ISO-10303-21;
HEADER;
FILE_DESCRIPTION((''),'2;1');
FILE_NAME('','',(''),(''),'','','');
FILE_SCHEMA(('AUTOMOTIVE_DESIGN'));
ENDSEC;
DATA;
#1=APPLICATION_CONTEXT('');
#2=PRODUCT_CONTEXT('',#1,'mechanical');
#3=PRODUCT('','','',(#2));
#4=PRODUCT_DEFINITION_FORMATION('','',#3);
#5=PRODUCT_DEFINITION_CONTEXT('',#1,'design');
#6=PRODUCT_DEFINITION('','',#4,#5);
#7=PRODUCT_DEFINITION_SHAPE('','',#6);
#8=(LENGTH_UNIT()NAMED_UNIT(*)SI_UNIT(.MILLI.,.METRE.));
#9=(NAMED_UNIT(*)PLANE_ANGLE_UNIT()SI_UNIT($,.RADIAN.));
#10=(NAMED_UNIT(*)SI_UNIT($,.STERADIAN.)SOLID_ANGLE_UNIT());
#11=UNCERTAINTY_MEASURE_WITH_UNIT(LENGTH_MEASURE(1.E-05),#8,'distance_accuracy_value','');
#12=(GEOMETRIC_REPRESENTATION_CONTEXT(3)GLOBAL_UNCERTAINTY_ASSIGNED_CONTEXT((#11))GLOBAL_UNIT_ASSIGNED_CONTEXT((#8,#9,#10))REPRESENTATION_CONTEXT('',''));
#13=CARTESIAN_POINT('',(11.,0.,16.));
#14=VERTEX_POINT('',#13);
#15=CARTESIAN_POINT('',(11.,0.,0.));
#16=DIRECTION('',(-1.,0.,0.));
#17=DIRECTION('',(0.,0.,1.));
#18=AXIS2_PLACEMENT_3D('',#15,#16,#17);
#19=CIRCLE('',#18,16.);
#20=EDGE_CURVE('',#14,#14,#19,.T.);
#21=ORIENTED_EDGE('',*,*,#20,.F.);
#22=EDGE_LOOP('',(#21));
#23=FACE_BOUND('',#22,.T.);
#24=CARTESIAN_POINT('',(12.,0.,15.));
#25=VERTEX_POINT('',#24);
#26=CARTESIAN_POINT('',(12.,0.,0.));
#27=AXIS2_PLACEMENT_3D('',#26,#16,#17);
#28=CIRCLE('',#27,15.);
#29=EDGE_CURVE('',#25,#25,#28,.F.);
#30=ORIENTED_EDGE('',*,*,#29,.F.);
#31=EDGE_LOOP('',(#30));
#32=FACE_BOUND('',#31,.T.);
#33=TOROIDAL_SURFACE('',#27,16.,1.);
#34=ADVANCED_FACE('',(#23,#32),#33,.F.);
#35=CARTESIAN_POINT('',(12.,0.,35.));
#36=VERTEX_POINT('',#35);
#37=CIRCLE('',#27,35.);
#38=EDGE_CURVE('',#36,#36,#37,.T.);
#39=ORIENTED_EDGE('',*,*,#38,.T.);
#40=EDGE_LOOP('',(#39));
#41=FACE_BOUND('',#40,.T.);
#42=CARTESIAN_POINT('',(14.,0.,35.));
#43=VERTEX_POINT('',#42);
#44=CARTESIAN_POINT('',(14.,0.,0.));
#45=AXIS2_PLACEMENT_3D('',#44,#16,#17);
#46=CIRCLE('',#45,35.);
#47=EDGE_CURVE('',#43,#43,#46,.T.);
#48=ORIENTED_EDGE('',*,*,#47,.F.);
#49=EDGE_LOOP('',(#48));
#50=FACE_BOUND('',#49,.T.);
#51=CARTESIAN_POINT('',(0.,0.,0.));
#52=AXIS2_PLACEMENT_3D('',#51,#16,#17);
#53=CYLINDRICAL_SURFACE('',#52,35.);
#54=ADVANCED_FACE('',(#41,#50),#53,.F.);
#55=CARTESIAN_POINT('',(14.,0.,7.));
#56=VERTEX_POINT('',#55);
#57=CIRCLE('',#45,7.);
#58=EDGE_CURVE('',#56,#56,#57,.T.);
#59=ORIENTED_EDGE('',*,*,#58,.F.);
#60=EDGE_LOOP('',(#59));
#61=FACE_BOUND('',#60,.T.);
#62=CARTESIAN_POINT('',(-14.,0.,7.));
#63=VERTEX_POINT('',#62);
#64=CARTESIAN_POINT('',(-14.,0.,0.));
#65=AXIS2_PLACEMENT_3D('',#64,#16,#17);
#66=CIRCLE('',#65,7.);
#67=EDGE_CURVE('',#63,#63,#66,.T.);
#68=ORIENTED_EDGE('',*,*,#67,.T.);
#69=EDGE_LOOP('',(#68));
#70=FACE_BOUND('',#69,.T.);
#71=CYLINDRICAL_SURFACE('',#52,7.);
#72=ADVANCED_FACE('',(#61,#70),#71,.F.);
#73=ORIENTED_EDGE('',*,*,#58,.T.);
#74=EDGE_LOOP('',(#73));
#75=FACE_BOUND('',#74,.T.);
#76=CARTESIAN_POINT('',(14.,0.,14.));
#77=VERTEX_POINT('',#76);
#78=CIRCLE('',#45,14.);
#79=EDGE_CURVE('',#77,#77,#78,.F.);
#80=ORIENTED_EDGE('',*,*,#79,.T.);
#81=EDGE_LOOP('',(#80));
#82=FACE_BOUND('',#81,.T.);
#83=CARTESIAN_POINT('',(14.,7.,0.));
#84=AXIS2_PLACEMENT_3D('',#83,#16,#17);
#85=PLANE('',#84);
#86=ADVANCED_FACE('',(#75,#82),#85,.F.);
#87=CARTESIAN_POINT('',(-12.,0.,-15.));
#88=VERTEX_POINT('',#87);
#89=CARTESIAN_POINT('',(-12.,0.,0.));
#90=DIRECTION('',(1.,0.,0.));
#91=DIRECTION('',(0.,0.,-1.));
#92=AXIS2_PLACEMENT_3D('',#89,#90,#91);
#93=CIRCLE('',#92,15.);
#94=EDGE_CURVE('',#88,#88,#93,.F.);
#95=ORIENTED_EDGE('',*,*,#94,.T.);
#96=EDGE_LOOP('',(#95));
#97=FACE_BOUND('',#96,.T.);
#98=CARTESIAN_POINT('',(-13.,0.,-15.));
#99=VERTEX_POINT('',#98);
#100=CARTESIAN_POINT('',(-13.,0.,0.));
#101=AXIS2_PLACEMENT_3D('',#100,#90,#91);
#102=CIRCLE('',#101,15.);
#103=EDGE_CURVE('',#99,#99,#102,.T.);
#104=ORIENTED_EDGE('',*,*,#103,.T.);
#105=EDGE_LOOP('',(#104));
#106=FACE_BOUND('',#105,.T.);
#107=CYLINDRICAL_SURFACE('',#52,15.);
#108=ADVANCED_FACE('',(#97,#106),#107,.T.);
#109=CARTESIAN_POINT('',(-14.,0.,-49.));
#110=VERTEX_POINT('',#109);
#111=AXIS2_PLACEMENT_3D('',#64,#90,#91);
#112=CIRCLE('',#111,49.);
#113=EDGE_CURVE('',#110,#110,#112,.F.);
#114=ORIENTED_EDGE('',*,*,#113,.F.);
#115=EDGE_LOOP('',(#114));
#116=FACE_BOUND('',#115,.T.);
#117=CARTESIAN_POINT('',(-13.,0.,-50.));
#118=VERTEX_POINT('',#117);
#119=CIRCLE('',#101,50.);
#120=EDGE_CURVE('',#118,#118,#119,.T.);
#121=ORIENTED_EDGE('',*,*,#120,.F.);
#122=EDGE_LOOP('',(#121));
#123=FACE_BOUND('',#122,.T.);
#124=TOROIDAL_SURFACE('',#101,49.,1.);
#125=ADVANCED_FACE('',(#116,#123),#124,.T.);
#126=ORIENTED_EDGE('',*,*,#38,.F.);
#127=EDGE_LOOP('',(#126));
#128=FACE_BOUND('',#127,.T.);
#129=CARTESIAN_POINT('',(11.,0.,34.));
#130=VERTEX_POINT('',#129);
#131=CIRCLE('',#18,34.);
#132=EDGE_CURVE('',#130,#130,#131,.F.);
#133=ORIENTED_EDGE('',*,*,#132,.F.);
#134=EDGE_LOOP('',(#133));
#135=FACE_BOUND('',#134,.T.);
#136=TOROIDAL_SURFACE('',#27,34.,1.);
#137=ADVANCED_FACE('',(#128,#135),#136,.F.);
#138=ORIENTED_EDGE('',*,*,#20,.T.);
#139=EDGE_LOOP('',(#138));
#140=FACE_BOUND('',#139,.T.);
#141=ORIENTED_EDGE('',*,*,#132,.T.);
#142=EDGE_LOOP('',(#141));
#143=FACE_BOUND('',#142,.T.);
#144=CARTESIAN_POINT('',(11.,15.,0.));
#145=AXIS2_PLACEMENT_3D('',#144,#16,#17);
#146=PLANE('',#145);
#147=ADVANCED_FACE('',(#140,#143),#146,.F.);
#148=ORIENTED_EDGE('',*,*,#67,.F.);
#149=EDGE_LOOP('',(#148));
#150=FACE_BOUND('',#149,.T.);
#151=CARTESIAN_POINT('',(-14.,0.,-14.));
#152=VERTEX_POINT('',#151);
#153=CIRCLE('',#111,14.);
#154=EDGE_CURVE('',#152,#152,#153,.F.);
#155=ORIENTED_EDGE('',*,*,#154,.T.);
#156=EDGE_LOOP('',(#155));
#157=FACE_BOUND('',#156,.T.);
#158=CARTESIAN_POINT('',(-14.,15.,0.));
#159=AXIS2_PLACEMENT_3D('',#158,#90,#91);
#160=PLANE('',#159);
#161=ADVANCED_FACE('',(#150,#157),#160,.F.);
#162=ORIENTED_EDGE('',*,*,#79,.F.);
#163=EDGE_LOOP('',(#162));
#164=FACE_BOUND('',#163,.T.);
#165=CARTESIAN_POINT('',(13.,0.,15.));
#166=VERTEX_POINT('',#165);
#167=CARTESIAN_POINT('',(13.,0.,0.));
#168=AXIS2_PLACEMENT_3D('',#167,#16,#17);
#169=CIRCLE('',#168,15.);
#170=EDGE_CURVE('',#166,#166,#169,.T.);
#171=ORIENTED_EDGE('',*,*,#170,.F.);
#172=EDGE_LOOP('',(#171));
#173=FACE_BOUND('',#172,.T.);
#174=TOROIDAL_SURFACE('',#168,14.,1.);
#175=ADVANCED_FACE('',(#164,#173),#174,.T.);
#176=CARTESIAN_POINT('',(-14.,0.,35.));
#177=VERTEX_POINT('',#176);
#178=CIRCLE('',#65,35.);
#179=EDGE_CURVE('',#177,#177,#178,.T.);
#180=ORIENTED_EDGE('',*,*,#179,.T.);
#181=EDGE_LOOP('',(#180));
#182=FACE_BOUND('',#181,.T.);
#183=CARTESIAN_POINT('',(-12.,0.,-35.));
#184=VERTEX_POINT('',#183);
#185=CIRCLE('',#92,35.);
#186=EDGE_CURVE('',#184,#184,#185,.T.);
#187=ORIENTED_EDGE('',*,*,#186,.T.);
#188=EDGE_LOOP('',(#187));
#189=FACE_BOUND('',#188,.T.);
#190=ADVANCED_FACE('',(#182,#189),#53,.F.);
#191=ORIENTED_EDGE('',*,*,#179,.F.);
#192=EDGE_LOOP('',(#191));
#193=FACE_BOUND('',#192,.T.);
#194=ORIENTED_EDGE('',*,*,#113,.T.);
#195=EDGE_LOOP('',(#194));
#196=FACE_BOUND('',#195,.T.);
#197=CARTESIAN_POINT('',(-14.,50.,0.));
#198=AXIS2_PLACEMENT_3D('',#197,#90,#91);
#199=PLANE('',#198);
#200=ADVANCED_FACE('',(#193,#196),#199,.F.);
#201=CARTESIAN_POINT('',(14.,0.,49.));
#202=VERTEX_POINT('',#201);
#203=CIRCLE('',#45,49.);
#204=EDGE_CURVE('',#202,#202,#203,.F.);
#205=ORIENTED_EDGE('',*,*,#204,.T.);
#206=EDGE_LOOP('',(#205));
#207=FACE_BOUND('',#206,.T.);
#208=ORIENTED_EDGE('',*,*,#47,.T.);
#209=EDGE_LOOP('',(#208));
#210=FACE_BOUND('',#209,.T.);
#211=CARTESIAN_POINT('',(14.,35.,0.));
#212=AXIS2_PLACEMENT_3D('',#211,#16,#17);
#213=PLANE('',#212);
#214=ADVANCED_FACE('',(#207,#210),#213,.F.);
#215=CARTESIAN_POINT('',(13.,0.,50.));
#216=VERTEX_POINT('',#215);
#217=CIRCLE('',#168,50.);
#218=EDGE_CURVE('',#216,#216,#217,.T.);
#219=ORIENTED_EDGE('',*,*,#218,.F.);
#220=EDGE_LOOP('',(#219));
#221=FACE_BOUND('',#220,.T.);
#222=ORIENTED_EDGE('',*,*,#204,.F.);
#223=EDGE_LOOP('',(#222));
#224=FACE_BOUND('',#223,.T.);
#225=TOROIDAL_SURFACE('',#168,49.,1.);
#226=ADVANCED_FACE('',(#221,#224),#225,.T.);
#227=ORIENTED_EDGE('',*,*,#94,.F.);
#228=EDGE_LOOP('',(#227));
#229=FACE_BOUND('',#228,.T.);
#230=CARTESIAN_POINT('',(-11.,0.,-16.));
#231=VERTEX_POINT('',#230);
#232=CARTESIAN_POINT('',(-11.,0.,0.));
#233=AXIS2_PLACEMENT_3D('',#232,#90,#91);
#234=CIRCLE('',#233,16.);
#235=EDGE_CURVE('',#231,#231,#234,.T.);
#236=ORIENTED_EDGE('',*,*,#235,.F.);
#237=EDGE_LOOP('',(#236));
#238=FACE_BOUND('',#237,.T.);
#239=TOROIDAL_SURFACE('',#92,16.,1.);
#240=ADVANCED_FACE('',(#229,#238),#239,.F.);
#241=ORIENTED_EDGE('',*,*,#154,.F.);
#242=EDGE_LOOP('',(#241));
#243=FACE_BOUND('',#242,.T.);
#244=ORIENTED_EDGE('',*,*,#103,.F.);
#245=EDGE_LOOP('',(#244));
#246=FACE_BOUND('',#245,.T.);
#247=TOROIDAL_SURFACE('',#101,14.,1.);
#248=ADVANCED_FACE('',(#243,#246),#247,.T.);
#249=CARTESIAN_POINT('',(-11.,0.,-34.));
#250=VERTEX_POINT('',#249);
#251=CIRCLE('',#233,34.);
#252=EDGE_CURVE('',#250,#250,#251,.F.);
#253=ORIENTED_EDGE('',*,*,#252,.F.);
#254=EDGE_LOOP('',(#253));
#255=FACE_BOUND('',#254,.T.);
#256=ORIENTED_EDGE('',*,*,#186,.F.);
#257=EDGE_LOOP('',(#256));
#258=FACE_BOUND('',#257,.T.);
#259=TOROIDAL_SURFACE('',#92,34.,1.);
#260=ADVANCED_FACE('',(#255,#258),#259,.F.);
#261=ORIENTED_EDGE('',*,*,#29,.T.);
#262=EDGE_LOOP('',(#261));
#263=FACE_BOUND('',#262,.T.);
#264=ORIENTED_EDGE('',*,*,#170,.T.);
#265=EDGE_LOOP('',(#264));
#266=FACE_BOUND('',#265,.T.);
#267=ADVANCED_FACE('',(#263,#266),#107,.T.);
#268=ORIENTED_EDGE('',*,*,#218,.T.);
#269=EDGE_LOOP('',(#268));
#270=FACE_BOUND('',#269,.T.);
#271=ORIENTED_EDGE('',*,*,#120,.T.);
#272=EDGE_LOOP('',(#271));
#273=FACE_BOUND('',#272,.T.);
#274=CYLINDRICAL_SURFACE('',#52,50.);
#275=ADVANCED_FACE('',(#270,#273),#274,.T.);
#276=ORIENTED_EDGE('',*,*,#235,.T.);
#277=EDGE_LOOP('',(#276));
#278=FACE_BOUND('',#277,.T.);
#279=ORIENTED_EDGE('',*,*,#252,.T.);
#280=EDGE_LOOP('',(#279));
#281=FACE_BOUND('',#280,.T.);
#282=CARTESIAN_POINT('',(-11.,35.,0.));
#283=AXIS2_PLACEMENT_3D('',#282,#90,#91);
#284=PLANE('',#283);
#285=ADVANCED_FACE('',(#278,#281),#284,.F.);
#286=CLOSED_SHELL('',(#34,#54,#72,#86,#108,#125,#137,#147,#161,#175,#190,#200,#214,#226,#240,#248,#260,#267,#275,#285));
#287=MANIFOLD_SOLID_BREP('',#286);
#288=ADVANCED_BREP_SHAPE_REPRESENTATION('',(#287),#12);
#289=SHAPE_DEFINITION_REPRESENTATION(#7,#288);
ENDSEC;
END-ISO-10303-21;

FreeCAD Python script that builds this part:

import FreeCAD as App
import Part
import Sketcher
from FreeCAD import Vector
Q = App.Units.Quantity


def edges_at(feature, points):
    """Names of the edges that pass closest to the given points."""
    edges = feature.Shape.Edges
    near = lambda p: min(range(len(edges)), key=lambda i: edges[i].distToShape(Part.Vertex(*p))[0])
    return sorted({f"Edge{near(p) + 1}" for p in points})

doc = App.newDocument("Part")
body = doc.addObject("PartDesign::Body", "Body")

# Sketch on XY plane
sketch1 = doc.addObject("Sketcher::SketchObject", "Sketch")
body.addObject(sketch1)
sketch1.AttachmentSupport = (doc.XY_Plane, [""])
sketch1.MapMode = "FlatFace"
sketch1.addGeometry(Part.LineSegment(Vector(-14, 7, 0), Vector(14, 7, 0)), False)
sketch1.addGeometry(Part.LineSegment(Vector(14, 7, 0), Vector(14, 15, 0)), False)
sketch1.addGeometry(Part.LineSegment(Vector(14, 15, 0), Vector(11, 15, 0)), False)
sketch1.addGeometry(Part.LineSegment(Vector(11, 15, 0), Vector(11, 35, 0)), False)
sketch1.addGeometry(Part.LineSegment(Vector(11, 35, 0), Vector(14, 35, 0)), False)
sketch1.addGeometry(Part.LineSegment(Vector(14, 35, 0), Vector(14, 50, 0)), False)
sketch1.addGeometry(Part.LineSegment(Vector(14, 50, 0), Vector(-14, 50, 0)), False)
sketch1.addGeometry(Part.LineSegment(Vector(-14, 50, 0), Vector(-14, 35, 0)), False)
sketch1.addGeometry(Part.LineSegment(Vector(-14, 35, 0), Vector(-11, 35, 0)), False)
sketch1.addGeometry(Part.LineSegment(Vector(-11, 35, 0), Vector(-11, 15, 0)), False)
sketch1.addGeometry(Part.LineSegment(Vector(-11, 15, 0), Vector(-14, 15, 0)), False)
sketch1.addGeometry(Part.LineSegment(Vector(-14, 15, 0), Vector(-14, 7, 0)), False)
sketch1.addConstraint(Sketcher.Constraint("Coincident", 0, 2, 1, 1))
sketch1.addConstraint(Sketcher.Constraint("Coincident", 1, 2, 2, 1))
sketch1.addConstraint(Sketcher.Constraint("Coincident", 2, 2, 3, 1))
sketch1.addConstraint(Sketcher.Constraint("Coincident", 3, 2, 4, 1))
sketch1.addConstraint(Sketcher.Constraint("Coincident", 4, 2, 5, 1))
sketch1.addConstraint(Sketcher.Constraint("Coincident", 5, 2, 6, 1))
sketch1.addConstraint(Sketcher.Constraint("Coincident", 6, 2, 7, 1))
sketch1.addConstraint(Sketcher.Constraint("Coincident", 7, 2, 8, 1))
sketch1.addConstraint(Sketcher.Constraint("Coincident", 8, 2, 9, 1))
sketch1.addConstraint(Sketcher.Constraint("Coincident", 9, 2, 10, 1))
sketch1.addConstraint(Sketcher.Constraint("Coincident", 10, 2, 11, 1))
sketch1.addConstraint(Sketcher.Constraint("Coincident", 11, 2, 0, 1))
sketch1.addConstraint(Sketcher.Constraint("Horizontal", 0))
sketch1.addConstraint(Sketcher.Constraint("Vertical", 1))
sketch1.addConstraint(Sketcher.Constraint("Horizontal", 2))
sketch1.addConstraint(Sketcher.Constraint("Vertical", 3))
sketch1.addConstraint(Sketcher.Constraint("Horizontal", 4))
sketch1.addConstraint(Sketcher.Constraint("Vertical", 5))
sketch1.addConstraint(Sketcher.Constraint("Horizontal", 6))
sketch1.addConstraint(Sketcher.Constraint("Vertical", 7))
sketch1.addConstraint(Sketcher.Constraint("Horizontal", 8))
sketch1.addConstraint(Sketcher.Constraint("Vertical", 9))
sketch1.addConstraint(Sketcher.Constraint("Horizontal", 10))
sketch1.addConstraint(Sketcher.Constraint("Vertical", 11))
sketch1.addConstraint(Sketcher.Constraint("Symmetric", 4, 2, 7, 2, -2))
sketch1.addConstraint(Sketcher.Constraint("Symmetric", 2, 2, 9, 2, -2))
sketch1.addConstraint(Sketcher.Constraint("Vertical", 1, 2, 4, 2))
sketch1.addConstraint(Sketcher.Constraint("Vertical", 7, 2, 10, 2))
sketch1.addConstraint(Sketcher.Constraint("DistanceX", 0, 1, 0, 2, Q("28 mm")))
sketch1.addConstraint(Sketcher.Constraint("DistanceX", 2, 2, 2, 1, Q("3 mm")))
sketch1.addConstraint(Sketcher.Constraint("DistanceY", 1, 1, 1, 2, Q("8 mm")))
sketch1.addConstraint(Sketcher.Constraint("DistanceY", 3, 1, 3, 2, Q("20 mm")))
sketch1.addConstraint(Sketcher.Constraint("DistanceY", 5, 1, 5, 2, Q("15 mm")))
sketch1.addConstraint(Sketcher.Constraint("DistanceY", -1, 1, 0, 2, Q("7 mm")))
revolution = doc.addObject("PartDesign::Revolution", "Revolution")
body.addObject(revolution)
revolution.Profile = sketch1
revolution.ReferenceAxis = (sketch1, ["H_Axis"])
revolution.Angle = 360
doc.recompute()

fillet = doc.addObject("PartDesign::Fillet", "Fillet")
body.addObject(fillet)
fillet.Base = (revolution, edges_at(revolution, [
    (-14, -50, 0),
    (14, -50, 0),
    (11, -35, 0),
    (11, -15, 0),
    (14, -15, 0),
    (-14, -15, 0),
    (-11, -15, 0),
    (-11, -35, 0),
]))
fillet.Radius = 1

doc.recompute()
